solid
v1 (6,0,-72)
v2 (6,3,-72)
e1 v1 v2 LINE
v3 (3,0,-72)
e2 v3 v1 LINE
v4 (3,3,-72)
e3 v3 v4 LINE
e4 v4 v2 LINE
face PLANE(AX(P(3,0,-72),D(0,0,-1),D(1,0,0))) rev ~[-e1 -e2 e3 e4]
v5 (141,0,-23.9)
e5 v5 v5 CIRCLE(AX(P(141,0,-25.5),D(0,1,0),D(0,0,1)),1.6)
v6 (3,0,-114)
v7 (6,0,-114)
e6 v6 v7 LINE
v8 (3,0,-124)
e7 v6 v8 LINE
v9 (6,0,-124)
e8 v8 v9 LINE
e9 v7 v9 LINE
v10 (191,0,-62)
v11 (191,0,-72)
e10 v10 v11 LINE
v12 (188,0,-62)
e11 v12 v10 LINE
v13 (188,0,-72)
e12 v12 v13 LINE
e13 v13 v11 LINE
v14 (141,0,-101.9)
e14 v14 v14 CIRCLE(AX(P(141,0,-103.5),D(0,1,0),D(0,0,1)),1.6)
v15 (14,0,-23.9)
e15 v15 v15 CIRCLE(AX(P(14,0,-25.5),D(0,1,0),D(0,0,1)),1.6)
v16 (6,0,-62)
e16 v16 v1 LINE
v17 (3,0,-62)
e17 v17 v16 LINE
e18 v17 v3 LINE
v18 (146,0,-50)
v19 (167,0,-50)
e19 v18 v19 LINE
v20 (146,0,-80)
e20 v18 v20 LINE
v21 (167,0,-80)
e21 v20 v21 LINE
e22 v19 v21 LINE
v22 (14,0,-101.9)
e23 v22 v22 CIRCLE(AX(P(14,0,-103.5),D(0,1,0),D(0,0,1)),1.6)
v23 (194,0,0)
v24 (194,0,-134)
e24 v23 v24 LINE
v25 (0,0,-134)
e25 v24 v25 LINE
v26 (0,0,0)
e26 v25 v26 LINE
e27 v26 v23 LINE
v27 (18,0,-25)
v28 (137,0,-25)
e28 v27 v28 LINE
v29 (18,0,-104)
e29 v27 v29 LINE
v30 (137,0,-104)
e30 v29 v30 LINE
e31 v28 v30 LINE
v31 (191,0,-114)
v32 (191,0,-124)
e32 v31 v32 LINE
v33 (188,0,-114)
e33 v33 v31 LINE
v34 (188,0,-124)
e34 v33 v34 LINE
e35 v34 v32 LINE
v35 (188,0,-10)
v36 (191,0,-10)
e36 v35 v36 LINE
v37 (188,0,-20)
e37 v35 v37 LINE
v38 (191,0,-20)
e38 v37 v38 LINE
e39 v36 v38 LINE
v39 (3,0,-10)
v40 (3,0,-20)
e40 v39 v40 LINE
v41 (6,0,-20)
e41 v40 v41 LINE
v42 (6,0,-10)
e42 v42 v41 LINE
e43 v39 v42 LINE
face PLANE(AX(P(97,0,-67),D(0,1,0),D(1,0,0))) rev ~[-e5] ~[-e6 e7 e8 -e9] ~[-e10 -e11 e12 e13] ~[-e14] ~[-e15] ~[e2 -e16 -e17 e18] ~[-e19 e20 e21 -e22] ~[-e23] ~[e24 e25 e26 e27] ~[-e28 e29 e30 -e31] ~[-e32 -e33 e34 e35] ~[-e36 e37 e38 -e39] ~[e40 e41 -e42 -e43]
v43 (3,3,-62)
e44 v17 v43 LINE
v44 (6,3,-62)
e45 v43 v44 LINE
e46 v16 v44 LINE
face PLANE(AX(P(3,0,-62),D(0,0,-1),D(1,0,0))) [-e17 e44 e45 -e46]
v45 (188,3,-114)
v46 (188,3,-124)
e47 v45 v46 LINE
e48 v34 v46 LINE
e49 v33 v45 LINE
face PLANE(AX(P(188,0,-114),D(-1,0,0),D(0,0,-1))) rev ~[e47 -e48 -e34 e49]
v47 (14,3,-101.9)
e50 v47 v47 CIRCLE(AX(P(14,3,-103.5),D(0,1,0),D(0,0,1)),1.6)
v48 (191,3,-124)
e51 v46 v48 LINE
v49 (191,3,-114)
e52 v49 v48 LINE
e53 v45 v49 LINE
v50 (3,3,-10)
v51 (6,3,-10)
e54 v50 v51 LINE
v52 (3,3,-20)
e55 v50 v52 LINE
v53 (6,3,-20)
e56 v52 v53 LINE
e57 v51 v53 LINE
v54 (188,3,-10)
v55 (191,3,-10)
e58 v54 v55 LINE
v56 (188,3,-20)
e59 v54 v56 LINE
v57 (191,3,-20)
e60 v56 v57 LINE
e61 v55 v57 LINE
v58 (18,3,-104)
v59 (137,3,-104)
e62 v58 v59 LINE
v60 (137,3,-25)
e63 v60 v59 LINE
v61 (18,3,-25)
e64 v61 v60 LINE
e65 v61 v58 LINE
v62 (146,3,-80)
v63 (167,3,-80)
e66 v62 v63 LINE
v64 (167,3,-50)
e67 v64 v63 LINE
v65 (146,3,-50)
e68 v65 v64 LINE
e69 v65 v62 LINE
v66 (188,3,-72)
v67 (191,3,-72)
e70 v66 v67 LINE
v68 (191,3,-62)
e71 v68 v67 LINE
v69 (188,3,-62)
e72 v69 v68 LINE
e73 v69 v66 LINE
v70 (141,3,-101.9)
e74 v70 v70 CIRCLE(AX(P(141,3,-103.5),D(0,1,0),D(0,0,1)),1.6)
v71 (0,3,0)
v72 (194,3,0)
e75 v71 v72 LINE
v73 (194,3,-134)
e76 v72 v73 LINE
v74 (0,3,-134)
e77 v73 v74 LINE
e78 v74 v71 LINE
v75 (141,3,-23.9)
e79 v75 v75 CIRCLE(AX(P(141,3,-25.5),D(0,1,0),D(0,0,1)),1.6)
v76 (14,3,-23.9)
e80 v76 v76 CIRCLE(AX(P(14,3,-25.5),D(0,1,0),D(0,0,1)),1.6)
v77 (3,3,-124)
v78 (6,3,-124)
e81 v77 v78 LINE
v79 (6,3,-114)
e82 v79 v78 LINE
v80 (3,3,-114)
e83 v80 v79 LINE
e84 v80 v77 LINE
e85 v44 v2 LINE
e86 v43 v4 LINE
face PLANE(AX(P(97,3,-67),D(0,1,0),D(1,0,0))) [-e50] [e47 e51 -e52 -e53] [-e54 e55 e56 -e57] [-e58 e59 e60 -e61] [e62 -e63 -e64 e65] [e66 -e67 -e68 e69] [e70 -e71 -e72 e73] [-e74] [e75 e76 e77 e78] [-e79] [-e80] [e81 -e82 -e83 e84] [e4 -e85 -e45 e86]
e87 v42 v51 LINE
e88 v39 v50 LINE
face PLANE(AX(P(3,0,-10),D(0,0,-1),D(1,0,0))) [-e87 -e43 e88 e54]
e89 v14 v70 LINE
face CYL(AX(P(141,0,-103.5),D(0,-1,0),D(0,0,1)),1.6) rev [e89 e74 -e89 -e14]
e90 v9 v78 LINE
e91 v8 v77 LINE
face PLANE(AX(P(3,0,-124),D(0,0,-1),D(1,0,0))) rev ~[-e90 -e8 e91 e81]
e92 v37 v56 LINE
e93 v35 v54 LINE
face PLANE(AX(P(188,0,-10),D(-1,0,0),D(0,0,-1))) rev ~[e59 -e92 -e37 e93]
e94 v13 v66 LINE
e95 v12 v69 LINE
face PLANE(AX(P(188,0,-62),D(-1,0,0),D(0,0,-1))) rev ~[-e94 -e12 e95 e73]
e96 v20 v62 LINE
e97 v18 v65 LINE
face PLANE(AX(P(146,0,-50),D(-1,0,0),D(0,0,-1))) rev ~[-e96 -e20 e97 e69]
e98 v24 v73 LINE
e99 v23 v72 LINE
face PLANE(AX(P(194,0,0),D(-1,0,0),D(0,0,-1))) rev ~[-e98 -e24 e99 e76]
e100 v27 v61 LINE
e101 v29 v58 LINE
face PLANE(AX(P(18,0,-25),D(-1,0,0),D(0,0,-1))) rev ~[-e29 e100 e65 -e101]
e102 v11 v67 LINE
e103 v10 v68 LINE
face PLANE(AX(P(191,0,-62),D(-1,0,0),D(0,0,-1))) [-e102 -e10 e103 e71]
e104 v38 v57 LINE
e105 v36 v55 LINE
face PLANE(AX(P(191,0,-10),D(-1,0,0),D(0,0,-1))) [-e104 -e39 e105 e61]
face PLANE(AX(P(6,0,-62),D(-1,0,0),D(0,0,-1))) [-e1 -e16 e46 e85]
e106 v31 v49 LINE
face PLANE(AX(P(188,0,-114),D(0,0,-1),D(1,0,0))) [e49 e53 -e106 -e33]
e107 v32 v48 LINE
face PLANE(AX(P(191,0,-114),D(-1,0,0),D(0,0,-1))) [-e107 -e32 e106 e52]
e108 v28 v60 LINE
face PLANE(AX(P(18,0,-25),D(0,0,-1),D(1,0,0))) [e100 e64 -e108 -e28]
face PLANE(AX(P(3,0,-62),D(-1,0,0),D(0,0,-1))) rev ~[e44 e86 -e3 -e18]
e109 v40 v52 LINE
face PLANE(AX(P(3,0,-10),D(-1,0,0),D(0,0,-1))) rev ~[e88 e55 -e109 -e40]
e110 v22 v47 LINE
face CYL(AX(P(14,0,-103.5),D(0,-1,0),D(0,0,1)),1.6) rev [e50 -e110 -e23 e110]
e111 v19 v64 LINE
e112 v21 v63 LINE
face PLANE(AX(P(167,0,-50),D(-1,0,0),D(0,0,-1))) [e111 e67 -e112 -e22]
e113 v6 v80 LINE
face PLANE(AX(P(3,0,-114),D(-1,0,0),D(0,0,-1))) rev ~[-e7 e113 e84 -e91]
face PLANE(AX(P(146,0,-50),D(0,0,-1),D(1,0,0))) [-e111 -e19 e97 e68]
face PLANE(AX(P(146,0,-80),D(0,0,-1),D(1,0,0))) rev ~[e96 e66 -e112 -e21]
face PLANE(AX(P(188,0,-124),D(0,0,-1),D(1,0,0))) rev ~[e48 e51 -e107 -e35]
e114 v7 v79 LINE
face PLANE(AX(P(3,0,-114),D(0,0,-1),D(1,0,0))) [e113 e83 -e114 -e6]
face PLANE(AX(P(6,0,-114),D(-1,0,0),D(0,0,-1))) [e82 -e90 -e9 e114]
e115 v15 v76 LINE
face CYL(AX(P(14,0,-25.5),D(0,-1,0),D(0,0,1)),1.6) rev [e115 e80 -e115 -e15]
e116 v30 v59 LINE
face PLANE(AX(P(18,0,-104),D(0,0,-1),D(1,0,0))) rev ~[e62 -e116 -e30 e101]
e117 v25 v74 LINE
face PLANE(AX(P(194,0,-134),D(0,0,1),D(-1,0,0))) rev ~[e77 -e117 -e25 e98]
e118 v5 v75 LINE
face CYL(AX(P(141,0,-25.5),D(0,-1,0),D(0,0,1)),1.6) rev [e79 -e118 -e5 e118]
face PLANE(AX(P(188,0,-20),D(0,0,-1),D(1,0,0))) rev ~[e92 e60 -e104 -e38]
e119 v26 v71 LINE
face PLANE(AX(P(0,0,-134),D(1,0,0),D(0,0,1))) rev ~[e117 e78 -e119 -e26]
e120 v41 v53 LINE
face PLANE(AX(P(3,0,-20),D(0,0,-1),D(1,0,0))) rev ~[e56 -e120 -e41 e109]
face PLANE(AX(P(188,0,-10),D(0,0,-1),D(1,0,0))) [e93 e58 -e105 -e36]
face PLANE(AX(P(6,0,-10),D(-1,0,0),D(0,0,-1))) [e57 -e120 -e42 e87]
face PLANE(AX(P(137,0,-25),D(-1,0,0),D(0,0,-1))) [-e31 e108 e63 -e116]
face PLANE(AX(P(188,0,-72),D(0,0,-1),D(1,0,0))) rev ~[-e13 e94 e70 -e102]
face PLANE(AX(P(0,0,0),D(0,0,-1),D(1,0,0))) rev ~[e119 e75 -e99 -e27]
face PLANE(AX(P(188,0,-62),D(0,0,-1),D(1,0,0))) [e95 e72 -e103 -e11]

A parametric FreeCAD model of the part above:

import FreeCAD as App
import Part
import Sketcher
from FreeCAD import Vector


def add_polygon(sketch, points):
    """Adds a closed chain of lines whose ends are joined by coincident constraints."""
    first, n = sketch.GeometryCount, len(points)
    for a, b in zip(points, points[1:] + points[:1]):
        sketch.addGeometry(Part.LineSegment(App.Vector(*a, 0), App.Vector(*b, 0)), False)
    for i in range(n):
        sketch.addConstraint(Sketcher.Constraint("Coincident", first + i, 2, first + (i + 1) % n, 1))

doc = App.newDocument("Part")
body = doc.addObject("PartDesign::Body", "Body")

# Sketch on XZ plane
sketch1 = doc.addObject("Sketcher::SketchObject", "Sketch")
body.addObject(sketch1)
sketch1.AttachmentSupport = (doc.XZ_Plane, [""])
sketch1.MapMode = "FlatFace"
add_polygon(sketch1, [(0, 0), (194, 0), (194, -134), (0, -134)])  # lines 0-3
add_polygon(sketch1, [(6, -10), (3, -10), (3, -20), (6, -20)])  # lines 4-7
sketch1.addGeometry(Part.Circle(Vector(14, -25.5, 0), Vector(0, 0, 1), 1.6), False)  # 8
add_polygon(sketch1, [(137, -25), (18, -25), (18, -104), (137, -104)])  # lines 9-12
sketch1.addGeometry(Part.Circle(Vector(141, -25.5, 0), Vector(0, 0, 1), 1.6), False)  # 13
add_polygon(sketch1, [(191, -10), (188, -10), (188, -20), (191, -20)])  # lines 14-17
add_polygon(sketch1, [(167, -50), (146, -50), (146, -80), (167, -80)])  # lines 18-21
add_polygon(sketch1, [(6, -62), (3, -62), (3, -72), (6, -72)])  # lines 22-25
sketch1.addGeometry(Part.Circle(Vector(14, -103.5, 0), Vector(0, 0, 1), 1.6), False)  # 26
add_polygon(sketch1, [(6, -114), (3, -114), (3, -124), (6, -124)])  # lines 27-30
add_polygon(sketch1, [(191, -62), (188, -62), (188, -72), (191, -72)])  # lines 31-34
sketch1.addGeometry(Part.Circle(Vector(141, -103.5, 0), Vector(0, 0, 1), 1.6), False)  # 35
add_polygon(sketch1, [(191, -114), (188, -114), (188, -124), (191, -124)])  # lines 36-39
sketch1.addConstraint([
    Sketcher.Constraint("Horizontal", 0),
    Sketcher.Constraint("Vertical", 1),
    Sketcher.Constraint("Horizontal", 2),
    Sketcher.Constraint("Vertical", 3),
    Sketcher.Constraint("Horizontal", 4),
    Sketcher.Constraint("Vertical", 5),
    Sketcher.Constraint("Horizontal", 6),
    Sketcher.Constraint("Vertical", 7),
    Sketcher.Constraint("Horizontal", 9),
    Sketcher.Constraint("Vertical", 10),
    Sketcher.Constraint("Horizontal", 11),
    Sketcher.Constraint("Vertical", 12),
    Sketcher.Constraint("Horizontal", 14),
    Sketcher.Constraint("Vertical", 15),
    Sketcher.Constraint("Horizontal", 16),
    Sketcher.Constraint("Vertical", 17),
    Sketcher.Constraint("Horizontal", 18),
    Sketcher.Constraint("Vertical", 19),
    Sketcher.Constraint("Horizontal", 20),
    Sketcher.Constraint("Vertical", 21),
    Sketcher.Constraint("Horizontal", 22),
    Sketcher.Constraint("Vertical", 23),
    Sketcher.Constraint("Horizontal", 24),
    Sketcher.Constraint("Vertical", 25),
    Sketcher.Constraint("Horizontal", 27),
    Sketcher.Constraint("Vertical", 28),
    Sketcher.Constraint("Horizontal", 29),
    Sketcher.Constraint("Vertical", 30),
    Sketcher.Constraint("Horizontal", 31),
    Sketcher.Constraint("Vertical", 32),
    Sketcher.Constraint("Horizontal", 33),
    Sketcher.Constraint("Vertical", 34),
    Sketcher.Constraint("Horizontal", 36),
    Sketcher.Constraint("Vertical", 37),
    Sketcher.Constraint("Horizontal", 38),
    Sketcher.Constraint("Vertical", 39),
    Sketcher.Constraint("Coincident", 3, 2, -1, 1),
    Sketcher.Constraint("Equal", 8, 13),
    Sketcher.Constraint("Equal", 13, 26),
    Sketcher.Constraint("Equal", 26, 35),
    Sketcher.Constraint("Horizontal", 8, 3, 13, 3),
    Sketcher.Constraint("Horizontal", 26, 3, 35, 3),
    Sketcher.Constraint("Horizontal", 7, 2, 14, 2),
    Sketcher.Constraint("Horizontal", 6, 2, 15, 2),
    Sketcher.Constraint("Horizontal", 25, 2, 31, 2),
    Sketcher.Constraint("Horizontal", 24, 2, 32, 2),
    Sketcher.Constraint("Horizontal", 30, 2, 36, 2),
    Sketcher.Constraint("Horizontal", 29, 2, 37, 2),
    Sketcher.Constraint("Vertical", 8, 3, 26, 3),
    Sketcher.Constraint("Vertical", 13, 3, 35, 3),
    Sketcher.Constraint("Vertical", 5, 2, 22, 2),
    Sketcher.Constraint("Vertical", 7, 2, 24, 2),
    Sketcher.Constraint("Vertical", 23, 2, 27, 2),
    Sketcher.Constraint("Vertical", 25, 2, 29, 2),
    Sketcher.Constraint("Vertical", 15, 2, 31, 2),
    Sketcher.Constraint("Vertical", 17, 2, 33, 2),
    Sketcher.Constraint("Vertical", 32, 2, 36, 2),
    Sketcher.Constraint("Vertical", 34, 2, 38, 2),
    Sketcher.Constraint("Equal", 6, 14),
    Sketcher.Constraint("Equal", 17, 23),
    Sketcher.Constraint("Equal", 25, 28),
    Sketcher.Constraint("Diameter", 8, 3.2),
    Sketcher.Constraint("DistanceX", 0, 1, 0, 2, 194.0),
    Sketcher.Constraint("DistanceX", 4, 2, 4, 1, 3.0),
    Sketcher.Constraint("DistanceX", 9, 2, 9, 1, 119.0),
    Sketcher.Constraint("DistanceX", 18, 2, 18, 1, 21.0),
    Sketcher.Constraint("DistanceY", 1, 2, 1, 1, 134.0),
    Sketcher.Constraint("DistanceY", 5, 2, 5, 1, 10.0),
    Sketcher.Constraint("DistanceY", 10, 2, 10, 1, 79.0),
    Sketcher.Constraint("DistanceY", 19, 2, 19, 1, 30.0),
    Sketcher.Constraint("DistanceX", -1, 1, 8, 3, 14.0),
    Sketcher.Constraint("DistanceX", -1, 1, 13, 3, 141.0),
    Sketcher.Constraint("DistanceX", -1, 1, 4, 2, 3.0),
    Sketcher.Constraint("DistanceY", 4, 2, -1, 1, 10.0),
    Sketcher.Constraint("DistanceX", -1, 1, 9, 2, 18.0),
    Sketcher.Constraint("DistanceY", 9, 2, -1, 1, 25.0),
    Sketcher.Constraint("DistanceX", -1, 1, 14, 2, 188.0),
    Sketcher.Constraint("DistanceX", -1, 1, 18, 2, 146.0),
    Sketcher.Constraint("DistanceY", 18, 2, -1, 1, 50.0),
    Sketcher.Constraint("DistanceY", 22, 2, -1, 1, 62.0),
    Sketcher.Constraint("DistanceY", 27, 2, -1, 1, 114.0),
    Sketcher.Constraint("DistanceY", 26, 3, 8, 3, 78.0),
    Sketcher.Constraint("DistanceY", 8, 3, -1, 1, 25.5),
])
pad1 = doc.addObject("PartDesign::Pad", "Pad")
body.addObject(pad1)
pad1.Profile = sketch1
pad1.Length = 3
pad1.Reversed = True

doc.recompute()
